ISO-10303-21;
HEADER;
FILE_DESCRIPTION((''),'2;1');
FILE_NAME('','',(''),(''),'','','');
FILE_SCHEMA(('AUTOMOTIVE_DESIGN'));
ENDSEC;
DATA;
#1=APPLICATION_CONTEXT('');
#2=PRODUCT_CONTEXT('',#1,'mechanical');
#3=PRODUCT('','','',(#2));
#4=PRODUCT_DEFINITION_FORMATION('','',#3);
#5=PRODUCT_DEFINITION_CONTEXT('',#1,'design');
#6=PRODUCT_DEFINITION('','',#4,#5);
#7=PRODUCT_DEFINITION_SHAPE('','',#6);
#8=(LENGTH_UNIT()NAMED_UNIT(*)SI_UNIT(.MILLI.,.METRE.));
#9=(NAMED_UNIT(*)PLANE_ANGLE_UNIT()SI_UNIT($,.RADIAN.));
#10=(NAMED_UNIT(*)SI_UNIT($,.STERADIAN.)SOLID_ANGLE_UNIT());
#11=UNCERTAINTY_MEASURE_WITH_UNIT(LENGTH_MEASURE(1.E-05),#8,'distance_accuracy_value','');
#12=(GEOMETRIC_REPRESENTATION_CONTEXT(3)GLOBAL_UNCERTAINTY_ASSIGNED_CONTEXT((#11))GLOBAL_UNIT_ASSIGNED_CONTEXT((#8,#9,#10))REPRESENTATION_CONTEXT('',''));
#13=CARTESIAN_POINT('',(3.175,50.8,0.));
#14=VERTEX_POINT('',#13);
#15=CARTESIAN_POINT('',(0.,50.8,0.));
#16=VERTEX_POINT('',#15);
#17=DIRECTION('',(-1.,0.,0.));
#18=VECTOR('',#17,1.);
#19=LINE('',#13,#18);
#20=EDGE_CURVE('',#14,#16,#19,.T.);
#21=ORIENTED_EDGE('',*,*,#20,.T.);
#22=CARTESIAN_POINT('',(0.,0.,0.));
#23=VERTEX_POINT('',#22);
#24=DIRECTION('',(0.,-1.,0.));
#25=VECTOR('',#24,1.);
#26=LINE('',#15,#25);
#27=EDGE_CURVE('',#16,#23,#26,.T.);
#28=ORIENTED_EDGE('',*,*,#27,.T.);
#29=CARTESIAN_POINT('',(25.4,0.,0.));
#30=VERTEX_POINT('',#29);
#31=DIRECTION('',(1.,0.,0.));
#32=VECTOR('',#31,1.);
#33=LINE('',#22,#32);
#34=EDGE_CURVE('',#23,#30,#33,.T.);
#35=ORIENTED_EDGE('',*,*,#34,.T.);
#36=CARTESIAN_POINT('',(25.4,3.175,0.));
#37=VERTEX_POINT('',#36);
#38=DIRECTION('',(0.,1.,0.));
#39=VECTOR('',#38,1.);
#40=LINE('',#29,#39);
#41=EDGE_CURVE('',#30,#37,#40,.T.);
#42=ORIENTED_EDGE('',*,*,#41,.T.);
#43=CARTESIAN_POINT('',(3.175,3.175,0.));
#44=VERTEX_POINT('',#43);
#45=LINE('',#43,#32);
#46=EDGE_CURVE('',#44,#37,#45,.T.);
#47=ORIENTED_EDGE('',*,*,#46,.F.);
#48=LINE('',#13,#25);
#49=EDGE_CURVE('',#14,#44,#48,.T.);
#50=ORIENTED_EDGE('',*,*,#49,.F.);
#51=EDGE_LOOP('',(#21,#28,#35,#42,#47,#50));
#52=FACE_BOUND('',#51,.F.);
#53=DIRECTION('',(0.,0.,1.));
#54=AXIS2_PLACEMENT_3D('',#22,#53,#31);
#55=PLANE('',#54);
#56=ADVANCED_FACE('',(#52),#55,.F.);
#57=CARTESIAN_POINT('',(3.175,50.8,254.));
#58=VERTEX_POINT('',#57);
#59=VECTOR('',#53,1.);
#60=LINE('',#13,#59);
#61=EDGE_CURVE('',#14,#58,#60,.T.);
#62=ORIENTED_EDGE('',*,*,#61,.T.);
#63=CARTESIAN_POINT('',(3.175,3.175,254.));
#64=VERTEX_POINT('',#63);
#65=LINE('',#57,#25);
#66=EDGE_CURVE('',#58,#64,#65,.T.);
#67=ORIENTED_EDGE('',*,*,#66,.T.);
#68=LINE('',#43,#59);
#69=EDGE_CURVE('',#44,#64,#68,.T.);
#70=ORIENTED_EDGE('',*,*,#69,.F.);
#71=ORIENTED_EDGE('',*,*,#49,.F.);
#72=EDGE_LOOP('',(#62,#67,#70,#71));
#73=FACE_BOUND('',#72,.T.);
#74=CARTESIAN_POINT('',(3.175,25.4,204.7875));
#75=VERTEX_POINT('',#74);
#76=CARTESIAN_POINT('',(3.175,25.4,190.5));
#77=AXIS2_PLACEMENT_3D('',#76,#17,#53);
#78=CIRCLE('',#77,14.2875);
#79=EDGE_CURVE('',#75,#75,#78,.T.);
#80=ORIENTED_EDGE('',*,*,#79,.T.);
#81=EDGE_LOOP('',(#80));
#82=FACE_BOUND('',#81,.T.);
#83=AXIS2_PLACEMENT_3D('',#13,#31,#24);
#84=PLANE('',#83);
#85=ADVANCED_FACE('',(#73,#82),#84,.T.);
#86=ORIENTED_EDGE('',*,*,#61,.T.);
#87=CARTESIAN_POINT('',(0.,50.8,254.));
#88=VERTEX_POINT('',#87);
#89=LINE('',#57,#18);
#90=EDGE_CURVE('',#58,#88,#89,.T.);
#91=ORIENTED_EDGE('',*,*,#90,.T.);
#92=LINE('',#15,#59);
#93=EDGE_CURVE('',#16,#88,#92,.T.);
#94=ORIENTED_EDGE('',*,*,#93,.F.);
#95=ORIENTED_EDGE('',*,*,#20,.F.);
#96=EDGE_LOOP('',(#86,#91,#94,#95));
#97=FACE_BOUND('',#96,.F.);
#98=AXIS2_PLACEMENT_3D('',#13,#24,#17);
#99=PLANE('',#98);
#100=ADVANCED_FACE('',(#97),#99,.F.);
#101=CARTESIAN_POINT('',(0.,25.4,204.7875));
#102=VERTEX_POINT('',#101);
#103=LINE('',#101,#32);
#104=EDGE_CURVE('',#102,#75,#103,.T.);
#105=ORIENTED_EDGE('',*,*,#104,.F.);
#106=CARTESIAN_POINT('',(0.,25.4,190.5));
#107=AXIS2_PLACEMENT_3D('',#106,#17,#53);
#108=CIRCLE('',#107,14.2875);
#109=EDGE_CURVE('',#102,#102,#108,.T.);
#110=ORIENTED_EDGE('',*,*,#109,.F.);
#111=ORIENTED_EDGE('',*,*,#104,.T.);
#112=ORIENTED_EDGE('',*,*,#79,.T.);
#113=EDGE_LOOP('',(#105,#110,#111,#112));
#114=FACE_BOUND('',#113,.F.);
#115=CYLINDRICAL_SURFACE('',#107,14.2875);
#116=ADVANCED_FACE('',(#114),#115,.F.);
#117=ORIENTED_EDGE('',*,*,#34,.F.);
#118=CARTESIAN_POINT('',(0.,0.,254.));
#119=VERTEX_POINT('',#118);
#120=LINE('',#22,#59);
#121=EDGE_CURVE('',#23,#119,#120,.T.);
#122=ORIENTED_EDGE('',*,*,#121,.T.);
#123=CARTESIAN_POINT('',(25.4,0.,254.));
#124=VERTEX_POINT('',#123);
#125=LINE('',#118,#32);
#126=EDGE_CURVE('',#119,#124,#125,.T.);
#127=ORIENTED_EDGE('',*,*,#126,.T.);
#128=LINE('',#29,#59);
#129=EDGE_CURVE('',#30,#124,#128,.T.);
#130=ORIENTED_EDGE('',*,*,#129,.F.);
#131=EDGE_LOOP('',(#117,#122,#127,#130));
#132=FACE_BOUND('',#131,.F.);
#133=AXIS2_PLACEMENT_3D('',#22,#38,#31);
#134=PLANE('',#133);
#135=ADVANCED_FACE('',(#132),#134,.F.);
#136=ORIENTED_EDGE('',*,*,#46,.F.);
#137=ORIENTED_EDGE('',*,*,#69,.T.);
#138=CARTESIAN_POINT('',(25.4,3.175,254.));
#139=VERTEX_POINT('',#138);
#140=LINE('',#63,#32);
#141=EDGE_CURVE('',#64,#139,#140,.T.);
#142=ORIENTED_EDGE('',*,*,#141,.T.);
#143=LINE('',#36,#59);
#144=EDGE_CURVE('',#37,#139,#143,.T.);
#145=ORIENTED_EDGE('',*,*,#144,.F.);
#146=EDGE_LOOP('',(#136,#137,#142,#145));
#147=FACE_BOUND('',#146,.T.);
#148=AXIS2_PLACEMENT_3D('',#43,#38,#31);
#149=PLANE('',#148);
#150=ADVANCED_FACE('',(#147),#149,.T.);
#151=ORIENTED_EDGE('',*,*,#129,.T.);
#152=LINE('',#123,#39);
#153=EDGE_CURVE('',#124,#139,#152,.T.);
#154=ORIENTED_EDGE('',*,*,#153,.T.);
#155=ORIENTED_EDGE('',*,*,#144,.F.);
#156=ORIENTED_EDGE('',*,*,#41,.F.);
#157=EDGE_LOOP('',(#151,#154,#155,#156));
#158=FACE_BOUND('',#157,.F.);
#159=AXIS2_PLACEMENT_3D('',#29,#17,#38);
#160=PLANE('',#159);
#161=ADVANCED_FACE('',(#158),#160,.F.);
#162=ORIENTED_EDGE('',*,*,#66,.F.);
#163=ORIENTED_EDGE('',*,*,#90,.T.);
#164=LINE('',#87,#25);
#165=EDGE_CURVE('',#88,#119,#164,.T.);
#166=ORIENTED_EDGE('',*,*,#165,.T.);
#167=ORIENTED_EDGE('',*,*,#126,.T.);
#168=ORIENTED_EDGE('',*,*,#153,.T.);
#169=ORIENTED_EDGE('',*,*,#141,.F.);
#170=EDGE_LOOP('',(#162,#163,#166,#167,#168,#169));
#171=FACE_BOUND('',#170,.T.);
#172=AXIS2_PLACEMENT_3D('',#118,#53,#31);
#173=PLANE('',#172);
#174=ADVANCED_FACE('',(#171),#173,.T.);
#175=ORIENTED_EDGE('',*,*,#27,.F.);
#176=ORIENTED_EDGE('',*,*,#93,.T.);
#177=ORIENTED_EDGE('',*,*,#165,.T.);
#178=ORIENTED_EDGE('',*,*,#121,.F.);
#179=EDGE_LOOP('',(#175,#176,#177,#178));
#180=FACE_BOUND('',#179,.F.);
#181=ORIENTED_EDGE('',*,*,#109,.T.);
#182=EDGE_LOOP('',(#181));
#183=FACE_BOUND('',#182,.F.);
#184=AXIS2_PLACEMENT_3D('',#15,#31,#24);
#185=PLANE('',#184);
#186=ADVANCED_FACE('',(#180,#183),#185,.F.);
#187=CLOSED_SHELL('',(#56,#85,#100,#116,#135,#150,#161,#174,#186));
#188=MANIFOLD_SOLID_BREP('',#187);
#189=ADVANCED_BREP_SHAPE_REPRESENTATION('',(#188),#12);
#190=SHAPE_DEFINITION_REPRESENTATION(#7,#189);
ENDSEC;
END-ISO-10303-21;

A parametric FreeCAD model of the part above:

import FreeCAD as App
import Part
import Sketcher

V = App.Vector
Q = App.Units.Quantity

doc = App.newDocument("Part")
body = doc.addObject("PartDesign::Body", "Body")

sketch1 = body.newObject("Sketcher::SketchObject", "Sketch")
sketch1.AttachmentSupport = (doc.getObject("XY_Plane"), [""])
sketch1.MapMode = "FlatFace"
sketch1.addGeometry([
    Part.LineSegment(V(0, 50.8, 0), V(0, 0, 0)),
    Part.LineSegment(V(0, 0, 0), V(25.4, 0, 0)),
    Part.LineSegment(V(25.4, 0, 0), V(25.4, 3.2, 0)),
    Part.LineSegment(V(25.4, 3.2, 0), V(3.2, 3.2, 0)),
    Part.LineSegment(V(3.2, 3.2, 0), V(3.2, 50.8, 0)),
    Part.LineSegment(V(3.2, 50.8, 0), V(0, 50.8, 0)),
], False)
sketch1.addConstraint([
    Sketcher.Constraint("Coincident", 0, 2, 1, 1),
    Sketcher.Constraint("Coincident", 1, 2, 2, 1),
    Sketcher.Constraint("Coincident", 2, 2, 3, 1),
    Sketcher.Constraint("Coincident", 3, 2, 4, 1),
    Sketcher.Constraint("Coincident", 4, 2, 5, 1),
    Sketcher.Constraint("Coincident", 5, 2, 0, 1),
    Sketcher.Constraint("Vertical", 0),
    Sketcher.Constraint("Horizontal", 1),
    Sketcher.Constraint("Vertical", 2),
    Sketcher.Constraint("Horizontal", 3),
    Sketcher.Constraint("Vertical", 4),
    Sketcher.Constraint("Horizontal", 5),
    Sketcher.Constraint("Coincident", 0, 2, -1, 1),
    Sketcher.Constraint("Equal", 5, 2),
    Sketcher.Constraint("DistanceX", 1, 1, 1, 2, Q("1 in")),
    Sketcher.Constraint("DistanceY", 0, 2, 0, 1, Q("2 in")),
    Sketcher.Constraint("DistanceX", 5, 2, 5, 1, Q("0.125 in")),
])
pad1 = body.newObject("PartDesign::Pad", "Pad")
pad1.Profile = sketch1
pad1.Length = Q("10 in")

sketch2 = body.newObject("Sketcher::SketchObject", "Sketch001")
sketch2.AttachmentSupport = (doc.getObject("YZ_Plane"), [""])
sketch2.MapMode = "FlatFace"
sketch2.addGeometry(Part.Circle(V(25, 190, 0), V(0, 0, 1), 14), False)
sketch2.addConstraint([
    Sketcher.Constraint("Diameter", 0, Q("1.125 in")),
    Sketcher.Constraint("DistanceX", -1, 1, 0, 3, Q("1 in")),
    Sketcher.Constraint("DistanceY", -1, 1, 0, 3, Q("7.5 in")),
])
pocket1 = body.newObject("PartDesign::Pocket", "Pocket")
pocket1.Profile = sketch2
pocket1.Type = "ThroughAll"
pocket1.Reversed = True

doc.recompute()
